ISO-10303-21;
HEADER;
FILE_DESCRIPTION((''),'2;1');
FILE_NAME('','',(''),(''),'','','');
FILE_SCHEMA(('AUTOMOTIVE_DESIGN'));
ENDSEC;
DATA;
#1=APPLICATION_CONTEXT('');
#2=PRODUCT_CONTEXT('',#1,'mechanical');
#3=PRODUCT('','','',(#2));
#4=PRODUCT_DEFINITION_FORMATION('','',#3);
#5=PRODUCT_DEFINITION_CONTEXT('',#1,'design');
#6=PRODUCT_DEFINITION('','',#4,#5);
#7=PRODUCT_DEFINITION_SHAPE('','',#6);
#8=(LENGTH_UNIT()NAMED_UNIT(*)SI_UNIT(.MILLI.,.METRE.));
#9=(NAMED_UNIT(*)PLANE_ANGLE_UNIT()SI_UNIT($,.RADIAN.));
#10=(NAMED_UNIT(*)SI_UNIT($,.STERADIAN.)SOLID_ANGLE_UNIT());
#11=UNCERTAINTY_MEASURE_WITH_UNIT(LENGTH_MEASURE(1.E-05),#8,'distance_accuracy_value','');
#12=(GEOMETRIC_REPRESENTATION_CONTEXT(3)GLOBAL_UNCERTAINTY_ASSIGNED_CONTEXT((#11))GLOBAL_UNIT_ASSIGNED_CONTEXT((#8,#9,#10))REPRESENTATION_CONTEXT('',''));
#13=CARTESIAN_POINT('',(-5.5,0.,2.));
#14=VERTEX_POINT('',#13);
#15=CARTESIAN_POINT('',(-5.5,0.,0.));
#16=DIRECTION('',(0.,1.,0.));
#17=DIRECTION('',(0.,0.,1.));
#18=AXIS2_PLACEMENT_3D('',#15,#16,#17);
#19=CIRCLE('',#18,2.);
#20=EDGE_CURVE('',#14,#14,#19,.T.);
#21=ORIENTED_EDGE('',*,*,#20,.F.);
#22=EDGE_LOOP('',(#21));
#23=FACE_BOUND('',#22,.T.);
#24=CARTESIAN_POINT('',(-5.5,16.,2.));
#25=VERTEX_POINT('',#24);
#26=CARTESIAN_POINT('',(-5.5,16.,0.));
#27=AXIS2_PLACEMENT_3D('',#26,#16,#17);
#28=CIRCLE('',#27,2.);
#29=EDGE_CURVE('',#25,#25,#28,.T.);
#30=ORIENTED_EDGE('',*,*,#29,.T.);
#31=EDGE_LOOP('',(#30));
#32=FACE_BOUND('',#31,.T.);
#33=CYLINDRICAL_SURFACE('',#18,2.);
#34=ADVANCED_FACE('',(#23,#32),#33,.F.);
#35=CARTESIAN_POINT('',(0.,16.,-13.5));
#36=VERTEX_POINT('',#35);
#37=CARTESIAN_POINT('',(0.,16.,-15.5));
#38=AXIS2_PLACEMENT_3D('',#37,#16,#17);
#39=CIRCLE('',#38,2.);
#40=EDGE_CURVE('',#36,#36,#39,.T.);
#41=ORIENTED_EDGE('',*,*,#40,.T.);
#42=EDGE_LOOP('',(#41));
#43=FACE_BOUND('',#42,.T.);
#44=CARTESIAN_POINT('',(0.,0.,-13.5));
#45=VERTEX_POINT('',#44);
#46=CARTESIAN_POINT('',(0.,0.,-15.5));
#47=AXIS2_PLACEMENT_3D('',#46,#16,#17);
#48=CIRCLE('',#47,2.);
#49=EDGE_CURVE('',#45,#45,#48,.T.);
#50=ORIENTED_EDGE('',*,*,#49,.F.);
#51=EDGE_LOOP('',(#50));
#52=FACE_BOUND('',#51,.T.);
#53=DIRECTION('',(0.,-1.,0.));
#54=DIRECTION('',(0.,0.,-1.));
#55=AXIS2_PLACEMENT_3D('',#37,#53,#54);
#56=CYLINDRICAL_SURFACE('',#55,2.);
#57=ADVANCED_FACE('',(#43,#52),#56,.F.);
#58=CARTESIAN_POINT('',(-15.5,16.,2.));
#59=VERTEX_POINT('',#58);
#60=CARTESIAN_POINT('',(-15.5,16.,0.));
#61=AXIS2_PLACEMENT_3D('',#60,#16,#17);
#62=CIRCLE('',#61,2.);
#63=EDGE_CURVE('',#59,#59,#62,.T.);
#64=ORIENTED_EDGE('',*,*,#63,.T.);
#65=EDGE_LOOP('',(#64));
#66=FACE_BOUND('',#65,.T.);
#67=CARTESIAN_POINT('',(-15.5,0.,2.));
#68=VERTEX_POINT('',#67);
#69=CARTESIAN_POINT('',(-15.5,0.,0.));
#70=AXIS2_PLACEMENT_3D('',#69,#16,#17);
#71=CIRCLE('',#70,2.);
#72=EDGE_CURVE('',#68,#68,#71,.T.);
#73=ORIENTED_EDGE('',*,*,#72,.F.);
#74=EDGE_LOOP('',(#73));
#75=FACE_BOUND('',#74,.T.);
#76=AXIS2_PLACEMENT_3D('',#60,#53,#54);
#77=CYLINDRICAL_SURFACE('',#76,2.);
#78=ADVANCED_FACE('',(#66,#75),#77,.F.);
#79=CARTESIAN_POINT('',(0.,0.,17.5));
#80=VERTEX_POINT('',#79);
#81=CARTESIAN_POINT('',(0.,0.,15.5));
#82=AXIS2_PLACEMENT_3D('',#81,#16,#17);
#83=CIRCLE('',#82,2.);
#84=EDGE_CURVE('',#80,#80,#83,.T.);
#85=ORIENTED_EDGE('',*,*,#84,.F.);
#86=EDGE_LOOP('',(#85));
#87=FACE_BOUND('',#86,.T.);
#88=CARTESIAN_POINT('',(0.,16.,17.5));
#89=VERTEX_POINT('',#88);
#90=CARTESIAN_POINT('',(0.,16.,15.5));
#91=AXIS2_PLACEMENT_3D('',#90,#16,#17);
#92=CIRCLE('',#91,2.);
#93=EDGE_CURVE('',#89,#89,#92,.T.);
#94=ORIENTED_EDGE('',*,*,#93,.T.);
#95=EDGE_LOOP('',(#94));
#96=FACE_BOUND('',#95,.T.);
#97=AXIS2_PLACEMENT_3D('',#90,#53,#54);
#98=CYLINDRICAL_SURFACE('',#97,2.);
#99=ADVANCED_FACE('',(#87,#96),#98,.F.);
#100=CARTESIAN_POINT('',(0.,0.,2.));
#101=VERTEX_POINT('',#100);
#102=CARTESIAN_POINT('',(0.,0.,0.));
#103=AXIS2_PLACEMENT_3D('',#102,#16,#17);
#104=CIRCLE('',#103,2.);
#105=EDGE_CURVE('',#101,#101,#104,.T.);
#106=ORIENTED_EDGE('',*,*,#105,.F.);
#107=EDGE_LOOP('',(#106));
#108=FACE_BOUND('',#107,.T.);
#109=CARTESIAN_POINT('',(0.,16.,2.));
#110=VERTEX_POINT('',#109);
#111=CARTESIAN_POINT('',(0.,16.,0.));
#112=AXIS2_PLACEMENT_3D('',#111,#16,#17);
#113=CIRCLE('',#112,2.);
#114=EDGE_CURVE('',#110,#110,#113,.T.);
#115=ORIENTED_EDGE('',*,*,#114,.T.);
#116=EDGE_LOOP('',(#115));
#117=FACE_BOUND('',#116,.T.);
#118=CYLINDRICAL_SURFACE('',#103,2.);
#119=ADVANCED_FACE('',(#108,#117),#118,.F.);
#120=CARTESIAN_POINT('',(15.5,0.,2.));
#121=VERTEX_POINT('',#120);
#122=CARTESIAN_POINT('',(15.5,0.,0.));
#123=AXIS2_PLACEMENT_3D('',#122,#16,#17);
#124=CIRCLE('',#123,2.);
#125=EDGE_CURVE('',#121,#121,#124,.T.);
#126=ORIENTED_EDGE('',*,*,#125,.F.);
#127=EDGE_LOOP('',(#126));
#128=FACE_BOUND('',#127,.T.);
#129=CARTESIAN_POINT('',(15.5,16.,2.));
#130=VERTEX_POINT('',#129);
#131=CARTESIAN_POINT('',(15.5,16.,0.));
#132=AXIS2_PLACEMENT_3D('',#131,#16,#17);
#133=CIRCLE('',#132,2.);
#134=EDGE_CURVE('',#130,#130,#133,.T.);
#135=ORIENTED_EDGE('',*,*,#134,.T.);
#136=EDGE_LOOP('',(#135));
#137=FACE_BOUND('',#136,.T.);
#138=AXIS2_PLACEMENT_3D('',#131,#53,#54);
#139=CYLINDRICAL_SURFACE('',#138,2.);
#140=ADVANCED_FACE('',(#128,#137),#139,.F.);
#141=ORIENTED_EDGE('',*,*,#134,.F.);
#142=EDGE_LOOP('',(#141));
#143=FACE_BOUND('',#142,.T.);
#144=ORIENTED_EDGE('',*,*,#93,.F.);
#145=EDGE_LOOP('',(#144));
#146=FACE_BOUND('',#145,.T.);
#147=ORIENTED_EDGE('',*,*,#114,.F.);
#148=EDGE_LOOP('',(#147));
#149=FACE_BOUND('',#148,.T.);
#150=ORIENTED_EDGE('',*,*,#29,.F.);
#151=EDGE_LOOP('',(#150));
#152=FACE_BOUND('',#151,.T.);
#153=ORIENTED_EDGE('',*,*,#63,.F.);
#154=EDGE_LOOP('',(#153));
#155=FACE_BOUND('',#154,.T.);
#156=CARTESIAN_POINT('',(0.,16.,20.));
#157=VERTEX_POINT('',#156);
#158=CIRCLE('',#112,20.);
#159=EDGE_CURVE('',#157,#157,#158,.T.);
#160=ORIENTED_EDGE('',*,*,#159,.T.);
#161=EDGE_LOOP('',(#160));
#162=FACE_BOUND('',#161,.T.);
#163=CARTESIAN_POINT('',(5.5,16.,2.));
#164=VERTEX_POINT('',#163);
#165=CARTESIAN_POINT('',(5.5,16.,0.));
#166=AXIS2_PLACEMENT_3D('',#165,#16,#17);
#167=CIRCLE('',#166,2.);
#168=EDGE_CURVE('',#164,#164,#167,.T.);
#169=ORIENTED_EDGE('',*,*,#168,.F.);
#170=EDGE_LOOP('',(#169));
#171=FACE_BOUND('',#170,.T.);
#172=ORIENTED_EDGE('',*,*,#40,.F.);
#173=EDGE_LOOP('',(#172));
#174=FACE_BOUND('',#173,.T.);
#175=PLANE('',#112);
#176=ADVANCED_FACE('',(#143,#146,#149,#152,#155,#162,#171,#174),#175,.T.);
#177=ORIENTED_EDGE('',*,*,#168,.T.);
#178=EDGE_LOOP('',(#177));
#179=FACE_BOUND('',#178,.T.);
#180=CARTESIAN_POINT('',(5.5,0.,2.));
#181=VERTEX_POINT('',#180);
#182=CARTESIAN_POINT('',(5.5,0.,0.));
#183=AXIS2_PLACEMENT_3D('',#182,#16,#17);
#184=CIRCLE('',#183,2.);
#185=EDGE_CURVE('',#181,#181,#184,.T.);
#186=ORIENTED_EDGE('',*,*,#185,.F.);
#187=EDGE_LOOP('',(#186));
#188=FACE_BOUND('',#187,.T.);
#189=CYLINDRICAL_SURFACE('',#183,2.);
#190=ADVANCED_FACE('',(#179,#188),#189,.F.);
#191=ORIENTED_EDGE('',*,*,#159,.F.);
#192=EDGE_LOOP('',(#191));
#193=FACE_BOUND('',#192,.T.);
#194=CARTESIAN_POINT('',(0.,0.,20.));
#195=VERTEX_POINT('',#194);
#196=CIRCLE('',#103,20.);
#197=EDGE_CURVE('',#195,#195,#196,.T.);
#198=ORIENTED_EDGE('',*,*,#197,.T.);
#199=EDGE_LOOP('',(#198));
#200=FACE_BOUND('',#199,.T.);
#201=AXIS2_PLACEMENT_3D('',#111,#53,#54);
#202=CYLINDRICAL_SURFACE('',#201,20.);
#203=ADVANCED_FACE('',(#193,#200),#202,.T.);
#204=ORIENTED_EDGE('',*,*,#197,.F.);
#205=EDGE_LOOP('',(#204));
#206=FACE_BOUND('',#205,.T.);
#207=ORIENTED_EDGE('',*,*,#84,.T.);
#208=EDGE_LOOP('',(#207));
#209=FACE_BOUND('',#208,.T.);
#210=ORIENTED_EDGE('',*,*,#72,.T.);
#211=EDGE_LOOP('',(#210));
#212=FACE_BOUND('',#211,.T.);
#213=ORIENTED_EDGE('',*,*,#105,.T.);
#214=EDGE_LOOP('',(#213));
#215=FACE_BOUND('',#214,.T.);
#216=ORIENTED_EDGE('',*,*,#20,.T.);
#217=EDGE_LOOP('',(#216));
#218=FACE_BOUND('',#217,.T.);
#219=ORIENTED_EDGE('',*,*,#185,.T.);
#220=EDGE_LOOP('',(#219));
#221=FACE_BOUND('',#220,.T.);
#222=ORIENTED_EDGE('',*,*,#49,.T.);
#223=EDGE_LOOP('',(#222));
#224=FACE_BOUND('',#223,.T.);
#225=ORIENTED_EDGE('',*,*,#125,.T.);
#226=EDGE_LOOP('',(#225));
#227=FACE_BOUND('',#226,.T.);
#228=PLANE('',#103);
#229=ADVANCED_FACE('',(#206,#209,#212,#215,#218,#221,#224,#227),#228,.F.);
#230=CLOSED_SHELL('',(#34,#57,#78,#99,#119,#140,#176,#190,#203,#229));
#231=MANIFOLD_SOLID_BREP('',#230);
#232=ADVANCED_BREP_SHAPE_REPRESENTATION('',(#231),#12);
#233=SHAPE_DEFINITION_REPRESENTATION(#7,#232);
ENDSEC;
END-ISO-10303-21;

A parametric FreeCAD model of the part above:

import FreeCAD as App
import Part
import Sketcher
Q = App.Units.Quantity

doc = App.newDocument("Part")
body = doc.addObject("PartDesign::Body", "Body")

# Sketch on XZ plane
sketch1 = doc.addObject("Sketcher::SketchObject", "Sketch")
body.addObject(sketch1)
sketch1.AttachmentSupport = (doc.XZ_Plane, [""])
sketch1.MapMode = "FlatFace"
sketch1.addGeometry(Part.Circle(App.Vector(0, 0, 0), App.Vector(0, 0, 1), 20), False)
sketch1.addGeometry(Part.Circle(App.Vector(0, -15.5, 0), App.Vector(0, 0, 1), 2), False)
sketch1.addGeometry(Part.Circle(App.Vector(-15.5, 0, 0), App.Vector(0, 0, 1), 2), False)
sketch1.addGeometry(Part.Circle(App.Vector(15.5, 0, 0), App.Vector(0, 0, 1), 2), False)
sketch1.addGeometry(Part.Circle(App.Vector(0, 15.5, 0), App.Vector(0, 0, 1), 2), False)
sketch1.addConstraint(Sketcher.Constraint("Coincident", 0, 3, -1, 1))
sketch1.addConstraint(Sketcher.Constraint("Equal", 1, 2))
sketch1.addConstraint(Sketcher.Constraint("Equal", 2, 3))
sketch1.addConstraint(Sketcher.Constraint("Equal", 3, 4))
sketch1.addConstraint(Sketcher.Constraint("Symmetric", 2, 3, 3, 3, -1, 1))
sketch1.addConstraint(Sketcher.Constraint("Symmetric", 1, 3, 4, 3, -1, 1))
sketch1.addConstraint(Sketcher.Constraint("PointOnObject", 1, 3, -2))
sketch1.addConstraint(Sketcher.Constraint("PointOnObject", 2, 3, -1))
sketch1.addConstraint(Sketcher.Constraint("Diameter", 0, Q("40 mm")))
sketch1.addConstraint(Sketcher.Constraint("Diameter", 1, Q("4 mm")))
sketch1.addConstraint(Sketcher.Constraint("DistanceX", 2, 3, 3, 3, Q("31 mm")))
sketch1.addConstraint(Sketcher.Constraint("DistanceY", 1, 3, 4, 3, Q("31 mm")))
pad1 = doc.addObject("PartDesign::Pad", "Pad")
body.addObject(pad1)
pad1.Profile = sketch1
pad1.Length = 16
pad1.Reversed = True

# Sketch on XZ plane
sketch2 = doc.addObject("Sketcher::SketchObject", "Sketch001")
body.addObject(sketch2)
sketch2.AttachmentSupport = (doc.XZ_Plane, [""])
sketch2.MapMode = "FlatFace"
sketch2.AttachmentOffset = App.Placement(App.Vector(0, 0, -16), App.Rotation())
sketch2.addGeometry(Part.Circle(App.Vector(0, 0, 0), App.Vector(0, 0, 1), 2), False)
sketch2.addGeometry(Part.Circle(App.Vector(5.5, 0, 0), App.Vector(0, 0, 1), 2), False)
sketch2.addGeometry(Part.Circle(App.Vector(-5.5, 0, 0), App.Vector(0, 0, 1), 2), False)
sketch2.addConstraint(Sketcher.Constraint("Coincident", 0, 3, -1, 1))
sketch2.addConstraint(Sketcher.Constraint("Equal", 0, 1))
sketch2.addConstraint(Sketcher.Constraint("Equal", 1, 2))
sketch2.addConstraint(Sketcher.Constraint("Symmetric", 1, 3, 2, 3, -1, 1))
sketch2.addConstraint(Sketcher.Constraint("PointOnObject", 1, 3, -1))
sketch2.addConstraint(Sketcher.Constraint("Diameter", 0, Q("4 mm")))
sketch2.addConstraint(Sketcher.Constraint("DistanceX", 2, 3, 1, 3, Q("11 mm")))
pocket1 = doc.addObject("PartDesign::Pocket", "Pocket")
body.addObject(pocket1)
pocket1.Profile = sketch2
pocket1.Type = "ThroughAll"
pocket1.Reversed = True

doc.recompute()
